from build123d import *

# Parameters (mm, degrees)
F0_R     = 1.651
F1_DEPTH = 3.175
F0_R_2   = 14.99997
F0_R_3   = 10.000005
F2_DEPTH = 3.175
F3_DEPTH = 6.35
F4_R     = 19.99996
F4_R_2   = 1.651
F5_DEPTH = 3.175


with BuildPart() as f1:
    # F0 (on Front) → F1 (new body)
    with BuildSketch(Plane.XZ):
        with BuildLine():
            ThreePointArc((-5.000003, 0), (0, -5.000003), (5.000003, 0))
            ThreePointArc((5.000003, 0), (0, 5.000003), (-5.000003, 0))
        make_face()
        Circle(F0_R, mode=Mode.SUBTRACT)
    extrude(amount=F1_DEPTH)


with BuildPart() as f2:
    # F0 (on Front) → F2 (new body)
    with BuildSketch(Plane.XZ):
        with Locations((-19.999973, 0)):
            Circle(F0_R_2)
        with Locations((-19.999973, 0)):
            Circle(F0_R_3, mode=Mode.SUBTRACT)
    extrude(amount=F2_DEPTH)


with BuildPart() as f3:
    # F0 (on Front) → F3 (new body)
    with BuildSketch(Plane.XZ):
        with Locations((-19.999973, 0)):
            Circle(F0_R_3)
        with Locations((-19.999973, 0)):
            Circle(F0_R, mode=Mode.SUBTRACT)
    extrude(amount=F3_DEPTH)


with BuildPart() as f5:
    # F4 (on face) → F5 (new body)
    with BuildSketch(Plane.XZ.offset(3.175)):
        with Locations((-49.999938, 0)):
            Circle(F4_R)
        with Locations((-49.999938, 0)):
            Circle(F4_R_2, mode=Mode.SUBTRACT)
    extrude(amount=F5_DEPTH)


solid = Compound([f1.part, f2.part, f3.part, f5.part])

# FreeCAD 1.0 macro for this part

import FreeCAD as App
import Part
import Sketcher
Q = App.Units.Quantity

doc = App.newDocument("Part")
body = doc.addObject("PartDesign::Body", "Body")

# Sketch on XZ plane
sketch1 = body.newObject("Sketcher::SketchObject", "Sketch")
sketch1.AttachmentSupport = (doc.getObject("XZ_Plane"), [""])
sketch1.MapMode = "FlatFace"
sketch1.addGeometry([
    Part.Circle(App.Vector(0, 0, 0), App.Vector(0, 0, 1), 5),
    Part.Circle(App.Vector(0, 0, 0), App.Vector(0, 0, 1), 1.7),
], False)
sketch1.addConstraint([
    Sketcher.Constraint("Coincident", 0, 3, -1, 1),
    Sketcher.Constraint("Coincident", 1, 3, -1, 1),
    Sketcher.Constraint("Diameter", 1, Q("0.13 in")),
    Sketcher.Constraint("Diameter", 0, 10.000006),
])
pad1 = body.newObject("PartDesign::Pad", "Pad")
pad1.Profile = sketch1
pad1.Length = Q("0.125 in")
body2 = doc.addObject("PartDesign::Body", "Body001")

# Sketch on XZ plane
sketch2 = body2.newObject("Sketcher::SketchObject", "Sketch001")
sketch2.AttachmentSupport = (doc.getObject("XZ_Plane001"), [""])
sketch2.MapMode = "FlatFace"
sketch2.addGeometry([
    Part.Circle(App.Vector(-19.999973, 0, 0), App.Vector(0, 0, 1), 14.99997),
    Part.Circle(App.Vector(-19.999973, 0, 0), App.Vector(0, 0, 1), 10.000005),
], False)
sketch2.addConstraint([
    Sketcher.Constraint("Coincident", 1, 3, 0, 3),
    Sketcher.Constraint("PointOnObject", 0, 3, -1),
    Sketcher.Constraint("Diameter", 0, Q("1.1811 in")),
    Sketcher.Constraint("Diameter", 1, 20.00001),
    Sketcher.Constraint("DistanceX", 0, 3, -1, 1, 19.999973),
])
pad2 = body2.newObject("PartDesign::Pad", "Pad001")
pad2.Profile = sketch2
pad2.Length = Q("0.125 in")
body3 = doc.addObject("PartDesign::Body", "Body002")

# Sketch on XZ plane
sketch3 = body3.newObject("Sketcher::SketchObject", "Sketch002")
sketch3.AttachmentSupport = (doc.getObject("XZ_Plane002"), [""])
sketch3.MapMode = "FlatFace"
sketch3.addGeometry([
    Part.Circle(App.Vector(-20, 0, 0), App.Vector(0, 0, 1), 10),
    Part.Circle(App.Vector(-20, 0, 0), App.Vector(0, 0, 1), 1.7),
], False)
sketch3.addConstraint([
    Sketcher.Constraint("Coincident", 1, 3, 0, 3),
    Sketcher.Constraint("PointOnObject", 0, 3, -1),
    Sketcher.Constraint("Diameter", 1, Q("0.13 in")),
    Sketcher.Constraint("Diameter", 0, 20.00001),
    Sketcher.Constraint("DistanceX", 0, 3, -1, 1, 19.999973),
])
pad3 = body3.newObject("PartDesign::Pad", "Pad002")
pad3.Profile = sketch3
pad3.Length = Q("0.25 in")
body4 = doc.addObject("PartDesign::Body", "Body003")

# Sketch on XZ plane
sketch4 = body4.newObject("Sketcher::SketchObject", "Sketch003")
sketch4.AttachmentSupport = (doc.getObject("XZ_Plane003"), [""])
sketch4.MapMode = "FlatFace"
sketch4.AttachmentOffset = App.Placement(App.Vector(0, 0, 0.125 * 25.4), App.Rotation())
sketch4.addGeometry([
    Part.Circle(App.Vector(-50, 0, 0), App.Vector(0, 0, 1), 20),
    Part.Circle(App.Vector(-50, 0, 0), App.Vector(0, 0, 1), 1.7),
], False)
sketch4.addConstraint([
    Sketcher.Constraint("Coincident", 1, 3, 0, 3),
    Sketcher.Constraint("PointOnObject", 0, 3, -1),
    Sketcher.Constraint("Diameter", 1, Q("0.13 in")),
    Sketcher.Constraint("Diameter", 0, Q("1.5748 in")),
    Sketcher.Constraint("DistanceX", 0, 3, -1, 1, 49.999938),
])
pad4 = body4.newObject("PartDesign::Pad", "Pad003")
pad4.Profile = sketch4
pad4.Length = Q("0.125 in")

doc.recompute()
